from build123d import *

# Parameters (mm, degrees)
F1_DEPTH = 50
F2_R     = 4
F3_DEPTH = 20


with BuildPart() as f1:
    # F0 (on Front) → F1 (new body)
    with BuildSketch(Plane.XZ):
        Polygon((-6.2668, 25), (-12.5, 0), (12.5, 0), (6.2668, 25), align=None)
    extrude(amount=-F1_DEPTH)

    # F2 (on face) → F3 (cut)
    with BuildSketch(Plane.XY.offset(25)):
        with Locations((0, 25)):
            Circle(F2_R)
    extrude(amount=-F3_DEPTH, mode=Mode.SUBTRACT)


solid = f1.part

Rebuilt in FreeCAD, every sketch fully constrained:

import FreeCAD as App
import Part
import Sketcher

V = App.Vector
Q = App.Units.Quantity


def add_polygon(sketch, points):
    """Adds a closed chain of lines whose ends are joined by coincident constraints."""
    first, n = sketch.GeometryCount, len(points)
    for a, b in zip(points, points[1:] + points[:1]):
        sketch.addGeometry(Part.LineSegment(App.Vector(*a, 0), App.Vector(*b, 0)), False)
    for i in range(n):
        sketch.addConstraint(Sketcher.Constraint("Coincident", first + i, 2, first + (i + 1) % n, 1))

doc = App.newDocument("Part")
body = doc.addObject("PartDesign::Body", "Body")

# Sketch on XZ plane
sketch1 = body.newObject("Sketcher::SketchObject", "Sketch")
sketch1.AttachmentSupport = (doc.getObject("XZ_Plane"), [""])
sketch1.MapMode = "FlatFace"
add_polygon(sketch1, [(-6.2668, 25), (-12.5, 0), (12.5, 0), (6.2668, 25)])  # lines 0-3
sketch1.addConstraint(Sketcher.Constraint("Horizontal", 1))
sketch1.addConstraint(Sketcher.Constraint("Horizontal", 3))
sketch1.addConstraint(Sketcher.Constraint("Symmetric", 0, 2, 1, 2, -1, 1))
sketch1.addConstraint(Sketcher.Constraint("Equal", 0, 2))
sketch1.addConstraint(Sketcher.Constraint("DistanceX", 1, 1, 1, 2, Q("25 mm")))
sketch1.addConstraint(Sketcher.Constraint("Angle", 0, Q("-104 deg")))
sketch1.addConstraint(Sketcher.Constraint("DistanceY", -1, 1, 2, 2, Q("25 mm")))
pad1 = body.newObject("PartDesign::Pad", "Pad")
pad1.Profile = sketch1
pad1.Length = 50
pad1.Reversed = True

# Sketch on XY plane
sketch2 = body.newObject("Sketcher::SketchObject", "Sketch001")
sketch2.AttachmentSupport = (doc.getObject("XY_Plane"), [""])
sketch2.MapMode = "FlatFace"
sketch2.AttachmentOffset = App.Placement(V(0, 0, 25), App.Rotation())
sketch2.addGeometry(Part.Circle(V(0, 25, 0), V(0, 0, 1), 4), False)
sketch2.addConstraint(Sketcher.Constraint("PointOnObject", 0, 3, -2))
sketch2.addConstraint(Sketcher.Constraint("Diameter", 0, Q("8 mm")))
sketch2.addConstraint(Sketcher.Constraint("DistanceY", -1, 1, 0, 3, Q("25 mm")))
pocket1 = body.newObject("PartDesign::Pocket", "Pocket")
pocket1.Profile = sketch2
pocket1.Length = 20

doc.recompute()
